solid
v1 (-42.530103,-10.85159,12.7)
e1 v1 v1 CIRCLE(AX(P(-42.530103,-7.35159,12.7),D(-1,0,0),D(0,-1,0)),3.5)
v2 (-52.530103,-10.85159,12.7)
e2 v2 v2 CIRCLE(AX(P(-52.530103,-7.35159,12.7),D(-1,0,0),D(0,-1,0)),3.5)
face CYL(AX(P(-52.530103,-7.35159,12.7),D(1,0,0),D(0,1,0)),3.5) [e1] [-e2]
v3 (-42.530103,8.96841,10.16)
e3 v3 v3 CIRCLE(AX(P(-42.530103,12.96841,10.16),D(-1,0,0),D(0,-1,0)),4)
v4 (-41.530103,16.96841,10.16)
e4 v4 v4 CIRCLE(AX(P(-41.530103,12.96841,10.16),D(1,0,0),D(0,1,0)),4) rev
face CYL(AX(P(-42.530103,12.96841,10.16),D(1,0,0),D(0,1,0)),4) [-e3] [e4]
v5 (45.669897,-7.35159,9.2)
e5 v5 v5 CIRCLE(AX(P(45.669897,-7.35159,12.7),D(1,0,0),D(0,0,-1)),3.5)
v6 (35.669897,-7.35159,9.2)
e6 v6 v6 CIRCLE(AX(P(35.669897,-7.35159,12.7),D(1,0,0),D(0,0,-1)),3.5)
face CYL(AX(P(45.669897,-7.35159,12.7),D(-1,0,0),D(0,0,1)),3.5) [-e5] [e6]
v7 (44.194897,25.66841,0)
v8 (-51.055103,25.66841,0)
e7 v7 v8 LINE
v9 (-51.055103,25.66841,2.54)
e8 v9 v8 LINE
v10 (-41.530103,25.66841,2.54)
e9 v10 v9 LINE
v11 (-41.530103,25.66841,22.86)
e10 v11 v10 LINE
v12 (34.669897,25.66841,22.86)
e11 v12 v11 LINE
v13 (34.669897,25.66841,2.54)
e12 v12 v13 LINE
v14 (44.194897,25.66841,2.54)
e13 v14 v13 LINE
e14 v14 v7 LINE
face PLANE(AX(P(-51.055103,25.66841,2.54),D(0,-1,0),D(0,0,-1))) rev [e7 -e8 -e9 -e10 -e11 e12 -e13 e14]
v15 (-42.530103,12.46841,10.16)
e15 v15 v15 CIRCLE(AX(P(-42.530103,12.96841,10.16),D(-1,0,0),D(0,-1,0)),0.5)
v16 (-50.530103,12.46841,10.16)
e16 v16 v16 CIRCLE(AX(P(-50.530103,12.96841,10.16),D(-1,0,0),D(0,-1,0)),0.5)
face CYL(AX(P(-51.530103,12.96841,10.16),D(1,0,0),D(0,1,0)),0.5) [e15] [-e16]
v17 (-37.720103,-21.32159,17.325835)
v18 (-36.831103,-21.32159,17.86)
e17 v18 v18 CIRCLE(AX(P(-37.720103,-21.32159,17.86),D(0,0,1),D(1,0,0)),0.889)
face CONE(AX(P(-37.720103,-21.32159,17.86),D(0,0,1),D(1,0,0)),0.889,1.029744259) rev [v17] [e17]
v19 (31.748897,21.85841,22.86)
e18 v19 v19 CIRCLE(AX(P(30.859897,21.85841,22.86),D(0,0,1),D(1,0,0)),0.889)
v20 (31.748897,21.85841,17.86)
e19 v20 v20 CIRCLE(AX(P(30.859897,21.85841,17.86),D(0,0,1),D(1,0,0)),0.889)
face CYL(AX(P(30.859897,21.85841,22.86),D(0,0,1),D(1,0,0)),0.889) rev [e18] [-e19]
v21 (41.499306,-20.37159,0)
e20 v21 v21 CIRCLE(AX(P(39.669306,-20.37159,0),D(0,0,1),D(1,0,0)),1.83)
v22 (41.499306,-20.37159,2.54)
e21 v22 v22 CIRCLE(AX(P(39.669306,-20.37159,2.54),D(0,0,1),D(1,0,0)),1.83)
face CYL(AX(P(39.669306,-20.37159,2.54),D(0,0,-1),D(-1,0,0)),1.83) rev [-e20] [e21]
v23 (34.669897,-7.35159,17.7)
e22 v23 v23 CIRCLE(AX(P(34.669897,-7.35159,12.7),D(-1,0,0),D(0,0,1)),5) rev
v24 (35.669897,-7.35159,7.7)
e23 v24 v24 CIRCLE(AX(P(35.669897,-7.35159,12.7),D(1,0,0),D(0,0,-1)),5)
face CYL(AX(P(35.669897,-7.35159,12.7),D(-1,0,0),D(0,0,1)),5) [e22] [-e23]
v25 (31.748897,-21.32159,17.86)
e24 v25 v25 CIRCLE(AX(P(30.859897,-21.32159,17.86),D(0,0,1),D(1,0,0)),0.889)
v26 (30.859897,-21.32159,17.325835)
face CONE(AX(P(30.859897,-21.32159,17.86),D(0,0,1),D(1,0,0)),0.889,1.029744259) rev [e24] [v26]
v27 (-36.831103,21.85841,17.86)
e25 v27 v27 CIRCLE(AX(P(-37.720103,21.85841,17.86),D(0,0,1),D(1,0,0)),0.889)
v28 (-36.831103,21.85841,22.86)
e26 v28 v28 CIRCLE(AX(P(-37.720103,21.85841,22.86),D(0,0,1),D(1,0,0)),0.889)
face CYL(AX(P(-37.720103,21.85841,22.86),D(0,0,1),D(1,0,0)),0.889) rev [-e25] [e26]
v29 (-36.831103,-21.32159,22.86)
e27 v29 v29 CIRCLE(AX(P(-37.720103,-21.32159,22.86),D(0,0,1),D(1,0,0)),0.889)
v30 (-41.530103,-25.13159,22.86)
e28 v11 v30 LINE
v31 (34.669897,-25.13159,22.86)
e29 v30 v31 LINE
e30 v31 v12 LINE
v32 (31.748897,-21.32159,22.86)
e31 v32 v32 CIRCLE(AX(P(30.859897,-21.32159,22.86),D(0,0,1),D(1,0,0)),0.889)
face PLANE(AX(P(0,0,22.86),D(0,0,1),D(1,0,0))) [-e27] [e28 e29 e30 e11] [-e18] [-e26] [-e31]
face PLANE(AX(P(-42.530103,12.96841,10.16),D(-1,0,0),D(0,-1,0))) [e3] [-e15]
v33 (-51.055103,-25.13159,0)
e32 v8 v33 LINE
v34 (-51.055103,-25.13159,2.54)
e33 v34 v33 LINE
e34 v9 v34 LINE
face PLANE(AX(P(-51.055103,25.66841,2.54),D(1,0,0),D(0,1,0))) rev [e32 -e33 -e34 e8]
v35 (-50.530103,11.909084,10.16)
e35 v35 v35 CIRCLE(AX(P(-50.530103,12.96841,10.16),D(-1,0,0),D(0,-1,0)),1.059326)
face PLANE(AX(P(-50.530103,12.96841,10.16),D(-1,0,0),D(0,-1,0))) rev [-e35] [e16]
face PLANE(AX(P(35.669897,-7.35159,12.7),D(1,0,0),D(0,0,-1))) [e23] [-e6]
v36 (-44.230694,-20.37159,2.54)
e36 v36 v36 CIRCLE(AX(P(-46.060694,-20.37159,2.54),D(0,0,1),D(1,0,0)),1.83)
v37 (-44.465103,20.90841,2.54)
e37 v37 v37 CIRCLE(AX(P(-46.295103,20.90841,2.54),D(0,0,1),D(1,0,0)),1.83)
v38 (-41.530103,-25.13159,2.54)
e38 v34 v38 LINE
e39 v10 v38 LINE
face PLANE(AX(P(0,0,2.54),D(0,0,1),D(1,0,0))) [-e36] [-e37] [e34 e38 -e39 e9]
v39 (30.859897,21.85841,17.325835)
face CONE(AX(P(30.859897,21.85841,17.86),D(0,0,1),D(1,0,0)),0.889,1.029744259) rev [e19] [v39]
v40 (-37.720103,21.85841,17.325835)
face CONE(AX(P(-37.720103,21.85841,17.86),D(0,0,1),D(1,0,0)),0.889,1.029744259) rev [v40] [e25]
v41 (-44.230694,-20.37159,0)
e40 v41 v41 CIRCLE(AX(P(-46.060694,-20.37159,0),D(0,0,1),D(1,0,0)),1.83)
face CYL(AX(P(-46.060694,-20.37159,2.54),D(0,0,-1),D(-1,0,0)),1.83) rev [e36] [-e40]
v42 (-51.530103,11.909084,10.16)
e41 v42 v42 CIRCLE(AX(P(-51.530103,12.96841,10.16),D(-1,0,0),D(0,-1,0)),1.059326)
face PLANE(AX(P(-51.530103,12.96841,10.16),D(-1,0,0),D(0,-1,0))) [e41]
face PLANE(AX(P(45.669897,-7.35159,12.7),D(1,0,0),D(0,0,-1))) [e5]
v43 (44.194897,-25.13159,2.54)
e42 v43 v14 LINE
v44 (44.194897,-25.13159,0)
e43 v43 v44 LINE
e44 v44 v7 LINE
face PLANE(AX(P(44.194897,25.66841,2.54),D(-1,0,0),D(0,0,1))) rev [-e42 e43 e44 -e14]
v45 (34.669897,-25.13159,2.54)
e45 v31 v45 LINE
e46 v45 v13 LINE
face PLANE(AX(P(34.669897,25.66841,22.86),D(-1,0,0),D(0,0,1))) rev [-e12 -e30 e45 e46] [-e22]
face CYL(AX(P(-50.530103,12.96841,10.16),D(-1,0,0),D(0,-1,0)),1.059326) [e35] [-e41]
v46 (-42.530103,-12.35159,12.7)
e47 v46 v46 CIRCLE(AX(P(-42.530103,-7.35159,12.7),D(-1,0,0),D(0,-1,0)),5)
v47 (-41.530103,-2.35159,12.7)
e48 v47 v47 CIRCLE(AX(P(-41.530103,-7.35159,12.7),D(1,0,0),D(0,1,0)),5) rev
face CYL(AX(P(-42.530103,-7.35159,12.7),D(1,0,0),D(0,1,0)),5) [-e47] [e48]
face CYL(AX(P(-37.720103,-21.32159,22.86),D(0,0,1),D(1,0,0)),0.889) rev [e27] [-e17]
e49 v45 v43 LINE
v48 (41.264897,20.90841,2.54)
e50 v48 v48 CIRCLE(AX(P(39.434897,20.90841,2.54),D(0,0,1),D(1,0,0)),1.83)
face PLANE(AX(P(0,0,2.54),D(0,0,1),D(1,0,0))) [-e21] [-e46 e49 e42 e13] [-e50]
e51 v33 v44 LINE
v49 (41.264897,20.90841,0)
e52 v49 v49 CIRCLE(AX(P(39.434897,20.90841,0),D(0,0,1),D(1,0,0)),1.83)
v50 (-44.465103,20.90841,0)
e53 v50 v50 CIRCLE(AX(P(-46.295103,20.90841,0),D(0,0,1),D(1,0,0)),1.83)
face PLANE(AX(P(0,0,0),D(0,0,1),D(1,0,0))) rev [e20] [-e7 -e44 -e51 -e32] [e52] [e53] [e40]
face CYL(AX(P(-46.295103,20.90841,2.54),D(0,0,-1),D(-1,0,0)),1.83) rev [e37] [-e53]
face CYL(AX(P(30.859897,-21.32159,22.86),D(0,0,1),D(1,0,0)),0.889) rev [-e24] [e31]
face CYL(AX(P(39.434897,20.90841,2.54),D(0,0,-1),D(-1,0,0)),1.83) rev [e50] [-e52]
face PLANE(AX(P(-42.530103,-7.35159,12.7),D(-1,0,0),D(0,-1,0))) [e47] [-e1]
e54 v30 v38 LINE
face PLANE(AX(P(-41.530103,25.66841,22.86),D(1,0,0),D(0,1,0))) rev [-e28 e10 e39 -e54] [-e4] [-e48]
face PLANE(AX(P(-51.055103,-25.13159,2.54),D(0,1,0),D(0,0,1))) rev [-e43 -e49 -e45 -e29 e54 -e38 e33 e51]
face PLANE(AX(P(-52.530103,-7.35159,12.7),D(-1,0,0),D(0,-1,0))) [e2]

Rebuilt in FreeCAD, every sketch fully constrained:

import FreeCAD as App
import Part
import Sketcher

V = App.Vector
Q = App.Units.Quantity


def add_polygon(sketch, points):
    """Adds a closed chain of lines whose ends are joined by coincident constraints."""
    first, n = sketch.GeometryCount, len(points)
    for a, b in zip(points, points[1:] + points[:1]):
        sketch.addGeometry(Part.LineSegment(App.Vector(*a, 0), App.Vector(*b, 0)), False)
    for i in range(n):
        sketch.addConstraint(Sketcher.Constraint("Coincident", first + i, 2, first + (i + 1) % n, 1))

doc = App.newDocument("Part")
body = doc.addObject("PartDesign::Body", "Body")

# Sketch on XY plane
sketch1 = body.newObject("Sketcher::SketchObject", "Sketch")
sketch1.AttachmentSupport = (doc.getObject("XY_Plane"), [""])
sketch1.MapMode = "FlatFace"
add_polygon(sketch1, [(-51.1, 25.7), (-51.1, -25.1), (44.2, -25.1), (44.2, 25.7)])  # lines 0-3
sketch1.addGeometry(Part.Circle(V(-46.1, -20.4, 0), V(0, 0, 1), 1.8), False)  # 4
sketch1.addGeometry(Part.Circle(V(39.7, -20.4, 0), V(0, 0, 1), 1.8), False)  # 5
sketch1.addGeometry(Part.Circle(V(-46.3, 20.9, 0), V(0, 0, 1), 1.8), False)  # 6
sketch1.addGeometry(Part.Circle(V(39.4, 20.9, 0), V(0, 0, 1), 1.8), False)  # 7
sketch1.addConstraint([
    Sketcher.Constraint("Vertical", 0),
    Sketcher.Constraint("Horizontal", 1),
    Sketcher.Constraint("Vertical", 2),
    Sketcher.Constraint("Horizontal", 3),
    Sketcher.Constraint("Equal", 4, 5),
    Sketcher.Constraint("Equal", 5, 6),
    Sketcher.Constraint("Equal", 6, 7),
    Sketcher.Constraint("Horizontal", 4, 3, 5, 3),
    Sketcher.Constraint("Horizontal", 6, 3, 7, 3),
    Sketcher.Constraint("Diameter", 4, Q("3.66 mm")),
    Sketcher.Constraint("DistanceY", 0, 2, 0, 1, Q("50.8 mm")),
    Sketcher.Constraint("DistanceX", 1, 1, 1, 2, Q("95.25 mm")),
    Sketcher.Constraint("DistanceX", 4, 3, 5, 3, Q("85.73 mm")),
    Sketcher.Constraint("DistanceY", 4, 3, 6, 3, Q("41.28 mm")),
    Sketcher.Constraint("DistanceX", 6, 3, 7, 3, Q("85.73 mm")),
    Sketcher.Constraint("DistanceY", 0, 2, 4, 3, Q("4.76 mm")),
    Sketcher.Constraint("DistanceX", 0, 2, 6, 3, Q("4.76 mm")),
    Sketcher.Constraint("DistanceY", 4, 3, -1, 1, Q("20.37159 mm")),
    Sketcher.Constraint("DistanceX", 6, 3, 4, 3, Q("0.234409 mm")),
    Sketcher.Constraint("DistanceX", 4, 3, -1, 1, Q("46.060694 mm")),
])
pad1 = body.newObject("PartDesign::Pad", "Pad")
pad1.Profile = sketch1
pad1.Length = 2.54

# Sketch on XY plane
sketch2 = body.newObject("Sketcher::SketchObject", "Sketch001")
sketch2.AttachmentSupport = (doc.getObject("XY_Plane"), [""])
sketch2.MapMode = "FlatFace"
sketch2.AttachmentOffset = App.Placement(V(0, 0, 2.54), App.Rotation())
add_polygon(sketch2, [(-42, 26), (-42, -25), (35, -25), (35, 26)])  # lines 0-3
sketch2.addConstraint([
    Sketcher.Constraint("Vertical", 0),
    Sketcher.Constraint("Horizontal", 1),
    Sketcher.Constraint("Vertical", 2),
    Sketcher.Constraint("Horizontal", 3),
    Sketcher.Constraint("DistanceX", 1, 1, 1, 2, Q("76.2 mm")),
    Sketcher.Constraint("DistanceY", 0, 2, 0, 1, Q("50.8 mm")),
    Sketcher.Constraint("DistanceY", 0, 2, -1, 1, Q("25.13159 mm")),
    Sketcher.Constraint("DistanceX", 0, 2, -1, 1, Q("41.530103 mm")),
])
pad2 = body.newObject("PartDesign::Pad", "Pad001")
pad2.Profile = sketch2
pad2.Length = 20.32

# Sketch on XY plane
sketch3 = body.newObject("Sketcher::SketchObject", "Sketch002")
sketch3.AttachmentSupport = (doc.getObject("XY_Plane"), [""])
sketch3.MapMode = "FlatFace"
sketch3.AttachmentOffset = App.Placement(V(0, 0, 22.86), App.Rotation())
sketch3.addGeometry([
    Part.Circle(V(-37.7, 21.9, 0), V(0, 0, 1), 0.9),
    Part.Circle(V(30.9, 21.9, 0), V(0, 0, 1), 0.9),
    Part.Circle(V(30.9, -21.3, 0), V(0, 0, 1), 0.9),
    Part.Circle(V(-37.7, -21.3, 0), V(0, 0, 1), 0.9),
], False)
sketch3.addConstraint([
    Sketcher.Constraint("Equal", 0, 1),
    Sketcher.Constraint("Equal", 1, 2),
    Sketcher.Constraint("Equal", 2, 3),
    Sketcher.Constraint("Horizontal", 0, 3, 1, 3),
    Sketcher.Constraint("Horizontal", 2, 3, 3, 3),
    Sketcher.Constraint("Vertical", 1, 3, 2, 3),
    Sketcher.Constraint("Vertical", 0, 3, 3, 3),
    Sketcher.Constraint("Diameter", 0, Q("1.778 mm")),
    Sketcher.Constraint("DistanceX", 0, 3, 1, 3, Q("68.58 mm")),
    Sketcher.Constraint("DistanceY", 2, 3, 1, 3, Q("43.18 mm")),
    Sketcher.Constraint("DistanceY", -1, 1, 0, 3, Q("21.85841 mm")),
    Sketcher.Constraint("DistanceX", 0, 3, -1, 1, Q("37.720103 mm")),
])
doc.recompute()
hole = body.newObject("PartDesign::Hole", "Hole")
hole.Profile = sketch3
hole.ThreadType = "None"
hole.Diameter = 1.778
hole.DepthType = "Dimension"
hole.Depth = 5
hole.DrillPoint = "Angled"
hole.DrillPointAngle = 118

# Sketch on YZ plane
sketch4 = body.newObject("Sketcher::SketchObject", "Sketch003")
sketch4.AttachmentSupport = (doc.getObject("YZ_Plane"), [""])
sketch4.MapMode = "FlatFace"
sketch4.AttachmentOffset = App.Placement(V(0, 0, -41.530103), App.Rotation())
sketch4.addGeometry(Part.Circle(V(-7.4, 12.7, 0), V(0, 0, 1), 3.5), False)
sketch4.addConstraint([
    Sketcher.Constraint("Diameter", 0, Q("7 mm")),
    Sketcher.Constraint("DistanceY", -1, 1, 0, 3, Q("12.7 mm")),
    Sketcher.Constraint("DistanceX", 0, 3, -1, 1, Q("7.35159 mm")),
])
pad3 = body.newObject("PartDesign::Pad", "Pad002")
pad3.Profile = sketch4
pad3.Length = 11
pad3.Reversed = True

# Sketch on YZ plane
sketch5 = body.newObject("Sketcher::SketchObject", "Sketch004")
sketch5.AttachmentSupport = (doc.getObject("YZ_Plane"), [""])
sketch5.MapMode = "FlatFace"
sketch5.AttachmentOffset = App.Placement(V(0, 0, -41.530103), App.Rotation())
sketch5.addGeometry(Part.Circle(V(-7, 13, 0), V(0, 0, 1), 5), False)
sketch5.addConstraint([
    Sketcher.Constraint("Diameter", 0, Q("10 mm")),
    Sketcher.Constraint("DistanceY", -1, 1, 0, 3, Q("12.7 mm")),
    Sketcher.Constraint("DistanceX", 0, 3, -1, 1, Q("7.35159 mm")),
])
pad4 = body.newObject("PartDesign::Pad", "Pad003")
pad4.Profile = sketch5
pad4.Length = 1
pad4.Reversed = True

# Sketch on YZ plane
sketch6 = body.newObject("Sketcher::SketchObject", "Sketch005")
sketch6.AttachmentSupport = (doc.getObject("YZ_Plane"), [""])
sketch6.MapMode = "FlatFace"
sketch6.AttachmentOffset = App.Placement(V(0, 0, 45.669897), App.Rotation())
sketch6.addGeometry(Part.Circle(V(-7.4, 12.7, 0), V(0, 0, 1), 3.5), False)
sketch6.addConstraint([
    Sketcher.Constraint("Diameter", 0, Q("7 mm")),
    Sketcher.Constraint("DistanceY", -1, 1, 0, 3, Q("12.7 mm")),
    Sketcher.Constraint("DistanceX", 0, 3, -1, 1, Q("7.35159 mm")),
])
pad5 = body.newObject("PartDesign::Pad", "Pad004")
pad5.Profile = sketch6
pad5.Length = 11
pad5.Reversed = True

# Sketch on YZ plane
sketch7 = body.newObject("Sketcher::SketchObject", "Sketch006")
sketch7.AttachmentSupport = (doc.getObject("YZ_Plane"), [""])
sketch7.MapMode = "FlatFace"
sketch7.AttachmentOffset = App.Placement(V(0, 0, 35.669897), App.Rotation())
sketch7.addGeometry(Part.Circle(V(-7, 13, 0), V(0, 0, 1), 5), False)
sketch7.addConstraint([
    Sketcher.Constraint("Diameter", 0, Q("10 mm")),
    Sketcher.Constraint("DistanceY", -1, 1, 0, 3, Q("12.7 mm")),
    Sketcher.Constraint("DistanceX", 0, 3, -1, 1, Q("7.35159 mm")),
])
pad6 = body.newObject("PartDesign::Pad", "Pad005")
pad6.Profile = sketch7
pad6.Length = 1
pad6.Reversed = True

# Sketch on YZ plane
sketch8 = body.newObject("Sketcher::SketchObject", "Sketch007")
sketch8.AttachmentSupport = (doc.getObject("YZ_Plane"), [""])
sketch8.MapMode = "FlatFace"
sketch8.AttachmentOffset = App.Placement(V(0, 0, -41.530103), App.Rotation())
sketch8.addGeometry(Part.Circle(V(13, 10.2, 0), V(0, 0, 1), 0.5), False)
sketch8.addConstraint([
    Sketcher.Constraint("Diameter", 0, Q("1 mm")),
    Sketcher.Constraint("DistanceY", -1, 1, 0, 3, Q("10.16 mm")),
    Sketcher.Constraint("DistanceX", -1, 1, 0, 3, Q("12.96841 mm")),
])
pad7 = body.newObject("PartDesign::Pad", "Pad006")
pad7.Profile = sketch8
pad7.Length = 10
pad7.Reversed = True

# Sketch on YZ plane
sketch9 = body.newObject("Sketcher::SketchObject", "Sketch008")
sketch9.AttachmentSupport = (doc.getObject("YZ_Plane"), [""])
sketch9.MapMode = "FlatFace"
sketch9.AttachmentOffset = App.Placement(V(0, 0, -51.530103), App.Rotation())
sketch9.addGeometry(Part.Circle(V(13, 10.2, 0), V(0, 0, 1), 1.1), False)
sketch9.addConstraint([
    Sketcher.Constraint("DistanceY", -1, 1, 0, 3, Q("10.16 mm")),
    Sketcher.Constraint("Diameter", 0, Q("2.118653 mm")),
    Sketcher.Constraint("DistanceX", -1, 1, 0, 3, Q("12.96841 mm")),
])
pad8 = body.newObject("PartDesign::Pad", "Pad007")
pad8.Profile = sketch9
pad8.Length = 1

# Sketch on YZ plane
sketch10 = body.newObject("Sketcher::SketchObject", "Sketch009")
sketch10.AttachmentSupport = (doc.getObject("YZ_Plane"), [""])
sketch10.MapMode = "FlatFace"
sketch10.AttachmentOffset = App.Placement(V(0, 0, -41.530103), App.Rotation())
sketch10.addGeometry(Part.Circle(V(13, 10.2, 0), V(0, 0, 1), 4), False)
sketch10.addConstraint([
    Sketcher.Constraint("Diameter", 0, Q("8 mm")),
    Sketcher.Constraint("DistanceY", -1, 1, 0, 3, Q("10.16 mm")),
    Sketcher.Constraint("DistanceX", -1, 1, 0, 3, Q("12.96841 mm")),
])
pad9 = body.newObject("PartDesign::Pad", "Pad008")
pad9.Profile = sketch10
pad9.Length = 1
pad9.Reversed = True

doc.recompute()
